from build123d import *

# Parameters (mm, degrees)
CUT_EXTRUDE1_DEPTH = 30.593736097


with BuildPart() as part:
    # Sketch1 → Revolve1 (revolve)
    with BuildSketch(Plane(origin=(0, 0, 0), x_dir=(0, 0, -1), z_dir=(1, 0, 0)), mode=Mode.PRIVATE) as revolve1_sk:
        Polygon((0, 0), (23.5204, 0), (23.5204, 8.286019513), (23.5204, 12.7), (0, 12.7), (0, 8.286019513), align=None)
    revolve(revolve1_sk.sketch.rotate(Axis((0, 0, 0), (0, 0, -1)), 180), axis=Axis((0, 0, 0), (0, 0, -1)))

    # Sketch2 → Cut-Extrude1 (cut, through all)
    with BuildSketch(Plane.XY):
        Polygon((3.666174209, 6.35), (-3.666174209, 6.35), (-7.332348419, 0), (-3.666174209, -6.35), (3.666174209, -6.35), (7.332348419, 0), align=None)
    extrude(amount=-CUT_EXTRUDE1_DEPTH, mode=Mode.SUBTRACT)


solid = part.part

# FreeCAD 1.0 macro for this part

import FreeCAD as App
import Part
import Sketcher

V = App.Vector
Q = App.Units.Quantity

doc = App.newDocument("Part")
body = doc.addObject("PartDesign::Body", "Body")

sketch1 = body.newObject("Sketcher::SketchObject", "Sketch")
sketch1.AttachmentSupport = (doc.getObject("YZ_Plane"), [""])
sketch1.MapMode = "FlatFace"
sketch1.addGeometry(Part.LineSegment(V(0, 0, 0), V(0, -23.5204, 0)), False)
sketch1.addGeometry(Part.LineSegment(V(0, -23.5204, 0), V(12.7, -23.5204, 0)), False)
sketch1.addGeometry(Part.LineSegment(V(12.7, -23.5204, 0), V(12.7, 0, 0)), False)
sketch1.addGeometry(Part.LineSegment(V(12.7, 0, 0), V(0, 0, 0)), False)
sketch1.addConstraint(Sketcher.Constraint("Coincident", 0, 2, 1, 1))
sketch1.addConstraint(Sketcher.Constraint("Coincident", 1, 2, 2, 1))
sketch1.addConstraint(Sketcher.Constraint("Coincident", 2, 2, 3, 1))
sketch1.addConstraint(Sketcher.Constraint("Coincident", 3, 2, 0, 1))
sketch1.addConstraint(Sketcher.Constraint("Vertical", 0))
sketch1.addConstraint(Sketcher.Constraint("Horizontal", 1))
sketch1.addConstraint(Sketcher.Constraint("Vertical", 2))
sketch1.addConstraint(Sketcher.Constraint("Horizontal", 3))
sketch1.addConstraint(Sketcher.Constraint("Coincident", 3, 2, -1, 1))
sketch1.addConstraint(Sketcher.Constraint("DistanceX", 1, 1, 1, 2, Q("0.5 in")))
sketch1.addConstraint(Sketcher.Constraint("DistanceY", 0, 2, 0, 1, Q("0.926 in")))
revolution = body.newObject("PartDesign::Revolution", "Revolution")
revolution.Profile = sketch1
revolution.ReferenceAxis = (sketch1, ["V_Axis"])
revolution.Angle = 360

sketch2 = body.newObject("Sketcher::SketchObject", "Sketch001")
sketch2.AttachmentSupport = (doc.getObject("XY_Plane"), [""])
sketch2.MapMode = "FlatFace"
sketch2.addGeometry(Part.LineSegment(V(3.666174, 6.35, 0), V(-3.666174, 6.35, 0)), False)
sketch2.addGeometry(Part.LineSegment(V(-3.666174, 6.35, 0), V(-7.332348, 0, 0)), False)
sketch2.addGeometry(Part.LineSegment(V(-7.332348, 0, 0), V(-3.666174, -6.35, 0)), False)
sketch2.addGeometry(Part.LineSegment(V(-3.666174, -6.35, 0), V(3.666174, -6.35, 0)), False)
sketch2.addGeometry(Part.LineSegment(V(3.666174, -6.35, 0), V(7.332348, 0, 0)), False)
sketch2.addGeometry(Part.LineSegment(V(7.332348, 0, 0), V(3.666174, 6.35, 0)), False)
sketch2.addConstraint(Sketcher.Constraint("Coincident", 0, 2, 1, 1))
sketch2.addConstraint(Sketcher.Constraint("Coincident", 1, 2, 2, 1))
sketch2.addConstraint(Sketcher.Constraint("Coincident", 2, 2, 3, 1))
sketch2.addConstraint(Sketcher.Constraint("Coincident", 3, 2, 4, 1))
sketch2.addConstraint(Sketcher.Constraint("Coincident", 4, 2, 5, 1))
sketch2.addConstraint(Sketcher.Constraint("Coincident", 5, 2, 0, 1))
sketch2.addConstraint(Sketcher.Constraint("Horizontal", 0))
sketch2.addConstraint(Sketcher.Constraint("Horizontal", 3))
sketch2.addConstraint(Sketcher.Constraint("Symmetric", 0, 2, 3, 2, -1, 1))
sketch2.addConstraint(Sketcher.Constraint("Symmetric", 1, 2, 4, 2, -1, 1))
sketch2.addConstraint(Sketcher.Constraint("PointOnObject", 1, 2, -1))
sketch2.addConstraint(Sketcher.Constraint("Parallel", 2, 5))
sketch2.addConstraint(Sketcher.Constraint("Vertical", 0, 2, 2, 2))
sketch2.addConstraint(Sketcher.Constraint("Angle", 1, Q("-120 deg")))
sketch2.addConstraint(Sketcher.Constraint("DistanceY", 2, 2, 0, 2, Q("0.5 in")))
sketch2.addConstraint(Sketcher.Constraint("DistanceX", 0, 2, 0, 1, Q("7.332348 mm")))
pocket1 = body.newObject("PartDesign::Pocket", "Pocket")
pocket1.Profile = sketch2
pocket1.Type = "ThroughAll"

doc.recompute()
